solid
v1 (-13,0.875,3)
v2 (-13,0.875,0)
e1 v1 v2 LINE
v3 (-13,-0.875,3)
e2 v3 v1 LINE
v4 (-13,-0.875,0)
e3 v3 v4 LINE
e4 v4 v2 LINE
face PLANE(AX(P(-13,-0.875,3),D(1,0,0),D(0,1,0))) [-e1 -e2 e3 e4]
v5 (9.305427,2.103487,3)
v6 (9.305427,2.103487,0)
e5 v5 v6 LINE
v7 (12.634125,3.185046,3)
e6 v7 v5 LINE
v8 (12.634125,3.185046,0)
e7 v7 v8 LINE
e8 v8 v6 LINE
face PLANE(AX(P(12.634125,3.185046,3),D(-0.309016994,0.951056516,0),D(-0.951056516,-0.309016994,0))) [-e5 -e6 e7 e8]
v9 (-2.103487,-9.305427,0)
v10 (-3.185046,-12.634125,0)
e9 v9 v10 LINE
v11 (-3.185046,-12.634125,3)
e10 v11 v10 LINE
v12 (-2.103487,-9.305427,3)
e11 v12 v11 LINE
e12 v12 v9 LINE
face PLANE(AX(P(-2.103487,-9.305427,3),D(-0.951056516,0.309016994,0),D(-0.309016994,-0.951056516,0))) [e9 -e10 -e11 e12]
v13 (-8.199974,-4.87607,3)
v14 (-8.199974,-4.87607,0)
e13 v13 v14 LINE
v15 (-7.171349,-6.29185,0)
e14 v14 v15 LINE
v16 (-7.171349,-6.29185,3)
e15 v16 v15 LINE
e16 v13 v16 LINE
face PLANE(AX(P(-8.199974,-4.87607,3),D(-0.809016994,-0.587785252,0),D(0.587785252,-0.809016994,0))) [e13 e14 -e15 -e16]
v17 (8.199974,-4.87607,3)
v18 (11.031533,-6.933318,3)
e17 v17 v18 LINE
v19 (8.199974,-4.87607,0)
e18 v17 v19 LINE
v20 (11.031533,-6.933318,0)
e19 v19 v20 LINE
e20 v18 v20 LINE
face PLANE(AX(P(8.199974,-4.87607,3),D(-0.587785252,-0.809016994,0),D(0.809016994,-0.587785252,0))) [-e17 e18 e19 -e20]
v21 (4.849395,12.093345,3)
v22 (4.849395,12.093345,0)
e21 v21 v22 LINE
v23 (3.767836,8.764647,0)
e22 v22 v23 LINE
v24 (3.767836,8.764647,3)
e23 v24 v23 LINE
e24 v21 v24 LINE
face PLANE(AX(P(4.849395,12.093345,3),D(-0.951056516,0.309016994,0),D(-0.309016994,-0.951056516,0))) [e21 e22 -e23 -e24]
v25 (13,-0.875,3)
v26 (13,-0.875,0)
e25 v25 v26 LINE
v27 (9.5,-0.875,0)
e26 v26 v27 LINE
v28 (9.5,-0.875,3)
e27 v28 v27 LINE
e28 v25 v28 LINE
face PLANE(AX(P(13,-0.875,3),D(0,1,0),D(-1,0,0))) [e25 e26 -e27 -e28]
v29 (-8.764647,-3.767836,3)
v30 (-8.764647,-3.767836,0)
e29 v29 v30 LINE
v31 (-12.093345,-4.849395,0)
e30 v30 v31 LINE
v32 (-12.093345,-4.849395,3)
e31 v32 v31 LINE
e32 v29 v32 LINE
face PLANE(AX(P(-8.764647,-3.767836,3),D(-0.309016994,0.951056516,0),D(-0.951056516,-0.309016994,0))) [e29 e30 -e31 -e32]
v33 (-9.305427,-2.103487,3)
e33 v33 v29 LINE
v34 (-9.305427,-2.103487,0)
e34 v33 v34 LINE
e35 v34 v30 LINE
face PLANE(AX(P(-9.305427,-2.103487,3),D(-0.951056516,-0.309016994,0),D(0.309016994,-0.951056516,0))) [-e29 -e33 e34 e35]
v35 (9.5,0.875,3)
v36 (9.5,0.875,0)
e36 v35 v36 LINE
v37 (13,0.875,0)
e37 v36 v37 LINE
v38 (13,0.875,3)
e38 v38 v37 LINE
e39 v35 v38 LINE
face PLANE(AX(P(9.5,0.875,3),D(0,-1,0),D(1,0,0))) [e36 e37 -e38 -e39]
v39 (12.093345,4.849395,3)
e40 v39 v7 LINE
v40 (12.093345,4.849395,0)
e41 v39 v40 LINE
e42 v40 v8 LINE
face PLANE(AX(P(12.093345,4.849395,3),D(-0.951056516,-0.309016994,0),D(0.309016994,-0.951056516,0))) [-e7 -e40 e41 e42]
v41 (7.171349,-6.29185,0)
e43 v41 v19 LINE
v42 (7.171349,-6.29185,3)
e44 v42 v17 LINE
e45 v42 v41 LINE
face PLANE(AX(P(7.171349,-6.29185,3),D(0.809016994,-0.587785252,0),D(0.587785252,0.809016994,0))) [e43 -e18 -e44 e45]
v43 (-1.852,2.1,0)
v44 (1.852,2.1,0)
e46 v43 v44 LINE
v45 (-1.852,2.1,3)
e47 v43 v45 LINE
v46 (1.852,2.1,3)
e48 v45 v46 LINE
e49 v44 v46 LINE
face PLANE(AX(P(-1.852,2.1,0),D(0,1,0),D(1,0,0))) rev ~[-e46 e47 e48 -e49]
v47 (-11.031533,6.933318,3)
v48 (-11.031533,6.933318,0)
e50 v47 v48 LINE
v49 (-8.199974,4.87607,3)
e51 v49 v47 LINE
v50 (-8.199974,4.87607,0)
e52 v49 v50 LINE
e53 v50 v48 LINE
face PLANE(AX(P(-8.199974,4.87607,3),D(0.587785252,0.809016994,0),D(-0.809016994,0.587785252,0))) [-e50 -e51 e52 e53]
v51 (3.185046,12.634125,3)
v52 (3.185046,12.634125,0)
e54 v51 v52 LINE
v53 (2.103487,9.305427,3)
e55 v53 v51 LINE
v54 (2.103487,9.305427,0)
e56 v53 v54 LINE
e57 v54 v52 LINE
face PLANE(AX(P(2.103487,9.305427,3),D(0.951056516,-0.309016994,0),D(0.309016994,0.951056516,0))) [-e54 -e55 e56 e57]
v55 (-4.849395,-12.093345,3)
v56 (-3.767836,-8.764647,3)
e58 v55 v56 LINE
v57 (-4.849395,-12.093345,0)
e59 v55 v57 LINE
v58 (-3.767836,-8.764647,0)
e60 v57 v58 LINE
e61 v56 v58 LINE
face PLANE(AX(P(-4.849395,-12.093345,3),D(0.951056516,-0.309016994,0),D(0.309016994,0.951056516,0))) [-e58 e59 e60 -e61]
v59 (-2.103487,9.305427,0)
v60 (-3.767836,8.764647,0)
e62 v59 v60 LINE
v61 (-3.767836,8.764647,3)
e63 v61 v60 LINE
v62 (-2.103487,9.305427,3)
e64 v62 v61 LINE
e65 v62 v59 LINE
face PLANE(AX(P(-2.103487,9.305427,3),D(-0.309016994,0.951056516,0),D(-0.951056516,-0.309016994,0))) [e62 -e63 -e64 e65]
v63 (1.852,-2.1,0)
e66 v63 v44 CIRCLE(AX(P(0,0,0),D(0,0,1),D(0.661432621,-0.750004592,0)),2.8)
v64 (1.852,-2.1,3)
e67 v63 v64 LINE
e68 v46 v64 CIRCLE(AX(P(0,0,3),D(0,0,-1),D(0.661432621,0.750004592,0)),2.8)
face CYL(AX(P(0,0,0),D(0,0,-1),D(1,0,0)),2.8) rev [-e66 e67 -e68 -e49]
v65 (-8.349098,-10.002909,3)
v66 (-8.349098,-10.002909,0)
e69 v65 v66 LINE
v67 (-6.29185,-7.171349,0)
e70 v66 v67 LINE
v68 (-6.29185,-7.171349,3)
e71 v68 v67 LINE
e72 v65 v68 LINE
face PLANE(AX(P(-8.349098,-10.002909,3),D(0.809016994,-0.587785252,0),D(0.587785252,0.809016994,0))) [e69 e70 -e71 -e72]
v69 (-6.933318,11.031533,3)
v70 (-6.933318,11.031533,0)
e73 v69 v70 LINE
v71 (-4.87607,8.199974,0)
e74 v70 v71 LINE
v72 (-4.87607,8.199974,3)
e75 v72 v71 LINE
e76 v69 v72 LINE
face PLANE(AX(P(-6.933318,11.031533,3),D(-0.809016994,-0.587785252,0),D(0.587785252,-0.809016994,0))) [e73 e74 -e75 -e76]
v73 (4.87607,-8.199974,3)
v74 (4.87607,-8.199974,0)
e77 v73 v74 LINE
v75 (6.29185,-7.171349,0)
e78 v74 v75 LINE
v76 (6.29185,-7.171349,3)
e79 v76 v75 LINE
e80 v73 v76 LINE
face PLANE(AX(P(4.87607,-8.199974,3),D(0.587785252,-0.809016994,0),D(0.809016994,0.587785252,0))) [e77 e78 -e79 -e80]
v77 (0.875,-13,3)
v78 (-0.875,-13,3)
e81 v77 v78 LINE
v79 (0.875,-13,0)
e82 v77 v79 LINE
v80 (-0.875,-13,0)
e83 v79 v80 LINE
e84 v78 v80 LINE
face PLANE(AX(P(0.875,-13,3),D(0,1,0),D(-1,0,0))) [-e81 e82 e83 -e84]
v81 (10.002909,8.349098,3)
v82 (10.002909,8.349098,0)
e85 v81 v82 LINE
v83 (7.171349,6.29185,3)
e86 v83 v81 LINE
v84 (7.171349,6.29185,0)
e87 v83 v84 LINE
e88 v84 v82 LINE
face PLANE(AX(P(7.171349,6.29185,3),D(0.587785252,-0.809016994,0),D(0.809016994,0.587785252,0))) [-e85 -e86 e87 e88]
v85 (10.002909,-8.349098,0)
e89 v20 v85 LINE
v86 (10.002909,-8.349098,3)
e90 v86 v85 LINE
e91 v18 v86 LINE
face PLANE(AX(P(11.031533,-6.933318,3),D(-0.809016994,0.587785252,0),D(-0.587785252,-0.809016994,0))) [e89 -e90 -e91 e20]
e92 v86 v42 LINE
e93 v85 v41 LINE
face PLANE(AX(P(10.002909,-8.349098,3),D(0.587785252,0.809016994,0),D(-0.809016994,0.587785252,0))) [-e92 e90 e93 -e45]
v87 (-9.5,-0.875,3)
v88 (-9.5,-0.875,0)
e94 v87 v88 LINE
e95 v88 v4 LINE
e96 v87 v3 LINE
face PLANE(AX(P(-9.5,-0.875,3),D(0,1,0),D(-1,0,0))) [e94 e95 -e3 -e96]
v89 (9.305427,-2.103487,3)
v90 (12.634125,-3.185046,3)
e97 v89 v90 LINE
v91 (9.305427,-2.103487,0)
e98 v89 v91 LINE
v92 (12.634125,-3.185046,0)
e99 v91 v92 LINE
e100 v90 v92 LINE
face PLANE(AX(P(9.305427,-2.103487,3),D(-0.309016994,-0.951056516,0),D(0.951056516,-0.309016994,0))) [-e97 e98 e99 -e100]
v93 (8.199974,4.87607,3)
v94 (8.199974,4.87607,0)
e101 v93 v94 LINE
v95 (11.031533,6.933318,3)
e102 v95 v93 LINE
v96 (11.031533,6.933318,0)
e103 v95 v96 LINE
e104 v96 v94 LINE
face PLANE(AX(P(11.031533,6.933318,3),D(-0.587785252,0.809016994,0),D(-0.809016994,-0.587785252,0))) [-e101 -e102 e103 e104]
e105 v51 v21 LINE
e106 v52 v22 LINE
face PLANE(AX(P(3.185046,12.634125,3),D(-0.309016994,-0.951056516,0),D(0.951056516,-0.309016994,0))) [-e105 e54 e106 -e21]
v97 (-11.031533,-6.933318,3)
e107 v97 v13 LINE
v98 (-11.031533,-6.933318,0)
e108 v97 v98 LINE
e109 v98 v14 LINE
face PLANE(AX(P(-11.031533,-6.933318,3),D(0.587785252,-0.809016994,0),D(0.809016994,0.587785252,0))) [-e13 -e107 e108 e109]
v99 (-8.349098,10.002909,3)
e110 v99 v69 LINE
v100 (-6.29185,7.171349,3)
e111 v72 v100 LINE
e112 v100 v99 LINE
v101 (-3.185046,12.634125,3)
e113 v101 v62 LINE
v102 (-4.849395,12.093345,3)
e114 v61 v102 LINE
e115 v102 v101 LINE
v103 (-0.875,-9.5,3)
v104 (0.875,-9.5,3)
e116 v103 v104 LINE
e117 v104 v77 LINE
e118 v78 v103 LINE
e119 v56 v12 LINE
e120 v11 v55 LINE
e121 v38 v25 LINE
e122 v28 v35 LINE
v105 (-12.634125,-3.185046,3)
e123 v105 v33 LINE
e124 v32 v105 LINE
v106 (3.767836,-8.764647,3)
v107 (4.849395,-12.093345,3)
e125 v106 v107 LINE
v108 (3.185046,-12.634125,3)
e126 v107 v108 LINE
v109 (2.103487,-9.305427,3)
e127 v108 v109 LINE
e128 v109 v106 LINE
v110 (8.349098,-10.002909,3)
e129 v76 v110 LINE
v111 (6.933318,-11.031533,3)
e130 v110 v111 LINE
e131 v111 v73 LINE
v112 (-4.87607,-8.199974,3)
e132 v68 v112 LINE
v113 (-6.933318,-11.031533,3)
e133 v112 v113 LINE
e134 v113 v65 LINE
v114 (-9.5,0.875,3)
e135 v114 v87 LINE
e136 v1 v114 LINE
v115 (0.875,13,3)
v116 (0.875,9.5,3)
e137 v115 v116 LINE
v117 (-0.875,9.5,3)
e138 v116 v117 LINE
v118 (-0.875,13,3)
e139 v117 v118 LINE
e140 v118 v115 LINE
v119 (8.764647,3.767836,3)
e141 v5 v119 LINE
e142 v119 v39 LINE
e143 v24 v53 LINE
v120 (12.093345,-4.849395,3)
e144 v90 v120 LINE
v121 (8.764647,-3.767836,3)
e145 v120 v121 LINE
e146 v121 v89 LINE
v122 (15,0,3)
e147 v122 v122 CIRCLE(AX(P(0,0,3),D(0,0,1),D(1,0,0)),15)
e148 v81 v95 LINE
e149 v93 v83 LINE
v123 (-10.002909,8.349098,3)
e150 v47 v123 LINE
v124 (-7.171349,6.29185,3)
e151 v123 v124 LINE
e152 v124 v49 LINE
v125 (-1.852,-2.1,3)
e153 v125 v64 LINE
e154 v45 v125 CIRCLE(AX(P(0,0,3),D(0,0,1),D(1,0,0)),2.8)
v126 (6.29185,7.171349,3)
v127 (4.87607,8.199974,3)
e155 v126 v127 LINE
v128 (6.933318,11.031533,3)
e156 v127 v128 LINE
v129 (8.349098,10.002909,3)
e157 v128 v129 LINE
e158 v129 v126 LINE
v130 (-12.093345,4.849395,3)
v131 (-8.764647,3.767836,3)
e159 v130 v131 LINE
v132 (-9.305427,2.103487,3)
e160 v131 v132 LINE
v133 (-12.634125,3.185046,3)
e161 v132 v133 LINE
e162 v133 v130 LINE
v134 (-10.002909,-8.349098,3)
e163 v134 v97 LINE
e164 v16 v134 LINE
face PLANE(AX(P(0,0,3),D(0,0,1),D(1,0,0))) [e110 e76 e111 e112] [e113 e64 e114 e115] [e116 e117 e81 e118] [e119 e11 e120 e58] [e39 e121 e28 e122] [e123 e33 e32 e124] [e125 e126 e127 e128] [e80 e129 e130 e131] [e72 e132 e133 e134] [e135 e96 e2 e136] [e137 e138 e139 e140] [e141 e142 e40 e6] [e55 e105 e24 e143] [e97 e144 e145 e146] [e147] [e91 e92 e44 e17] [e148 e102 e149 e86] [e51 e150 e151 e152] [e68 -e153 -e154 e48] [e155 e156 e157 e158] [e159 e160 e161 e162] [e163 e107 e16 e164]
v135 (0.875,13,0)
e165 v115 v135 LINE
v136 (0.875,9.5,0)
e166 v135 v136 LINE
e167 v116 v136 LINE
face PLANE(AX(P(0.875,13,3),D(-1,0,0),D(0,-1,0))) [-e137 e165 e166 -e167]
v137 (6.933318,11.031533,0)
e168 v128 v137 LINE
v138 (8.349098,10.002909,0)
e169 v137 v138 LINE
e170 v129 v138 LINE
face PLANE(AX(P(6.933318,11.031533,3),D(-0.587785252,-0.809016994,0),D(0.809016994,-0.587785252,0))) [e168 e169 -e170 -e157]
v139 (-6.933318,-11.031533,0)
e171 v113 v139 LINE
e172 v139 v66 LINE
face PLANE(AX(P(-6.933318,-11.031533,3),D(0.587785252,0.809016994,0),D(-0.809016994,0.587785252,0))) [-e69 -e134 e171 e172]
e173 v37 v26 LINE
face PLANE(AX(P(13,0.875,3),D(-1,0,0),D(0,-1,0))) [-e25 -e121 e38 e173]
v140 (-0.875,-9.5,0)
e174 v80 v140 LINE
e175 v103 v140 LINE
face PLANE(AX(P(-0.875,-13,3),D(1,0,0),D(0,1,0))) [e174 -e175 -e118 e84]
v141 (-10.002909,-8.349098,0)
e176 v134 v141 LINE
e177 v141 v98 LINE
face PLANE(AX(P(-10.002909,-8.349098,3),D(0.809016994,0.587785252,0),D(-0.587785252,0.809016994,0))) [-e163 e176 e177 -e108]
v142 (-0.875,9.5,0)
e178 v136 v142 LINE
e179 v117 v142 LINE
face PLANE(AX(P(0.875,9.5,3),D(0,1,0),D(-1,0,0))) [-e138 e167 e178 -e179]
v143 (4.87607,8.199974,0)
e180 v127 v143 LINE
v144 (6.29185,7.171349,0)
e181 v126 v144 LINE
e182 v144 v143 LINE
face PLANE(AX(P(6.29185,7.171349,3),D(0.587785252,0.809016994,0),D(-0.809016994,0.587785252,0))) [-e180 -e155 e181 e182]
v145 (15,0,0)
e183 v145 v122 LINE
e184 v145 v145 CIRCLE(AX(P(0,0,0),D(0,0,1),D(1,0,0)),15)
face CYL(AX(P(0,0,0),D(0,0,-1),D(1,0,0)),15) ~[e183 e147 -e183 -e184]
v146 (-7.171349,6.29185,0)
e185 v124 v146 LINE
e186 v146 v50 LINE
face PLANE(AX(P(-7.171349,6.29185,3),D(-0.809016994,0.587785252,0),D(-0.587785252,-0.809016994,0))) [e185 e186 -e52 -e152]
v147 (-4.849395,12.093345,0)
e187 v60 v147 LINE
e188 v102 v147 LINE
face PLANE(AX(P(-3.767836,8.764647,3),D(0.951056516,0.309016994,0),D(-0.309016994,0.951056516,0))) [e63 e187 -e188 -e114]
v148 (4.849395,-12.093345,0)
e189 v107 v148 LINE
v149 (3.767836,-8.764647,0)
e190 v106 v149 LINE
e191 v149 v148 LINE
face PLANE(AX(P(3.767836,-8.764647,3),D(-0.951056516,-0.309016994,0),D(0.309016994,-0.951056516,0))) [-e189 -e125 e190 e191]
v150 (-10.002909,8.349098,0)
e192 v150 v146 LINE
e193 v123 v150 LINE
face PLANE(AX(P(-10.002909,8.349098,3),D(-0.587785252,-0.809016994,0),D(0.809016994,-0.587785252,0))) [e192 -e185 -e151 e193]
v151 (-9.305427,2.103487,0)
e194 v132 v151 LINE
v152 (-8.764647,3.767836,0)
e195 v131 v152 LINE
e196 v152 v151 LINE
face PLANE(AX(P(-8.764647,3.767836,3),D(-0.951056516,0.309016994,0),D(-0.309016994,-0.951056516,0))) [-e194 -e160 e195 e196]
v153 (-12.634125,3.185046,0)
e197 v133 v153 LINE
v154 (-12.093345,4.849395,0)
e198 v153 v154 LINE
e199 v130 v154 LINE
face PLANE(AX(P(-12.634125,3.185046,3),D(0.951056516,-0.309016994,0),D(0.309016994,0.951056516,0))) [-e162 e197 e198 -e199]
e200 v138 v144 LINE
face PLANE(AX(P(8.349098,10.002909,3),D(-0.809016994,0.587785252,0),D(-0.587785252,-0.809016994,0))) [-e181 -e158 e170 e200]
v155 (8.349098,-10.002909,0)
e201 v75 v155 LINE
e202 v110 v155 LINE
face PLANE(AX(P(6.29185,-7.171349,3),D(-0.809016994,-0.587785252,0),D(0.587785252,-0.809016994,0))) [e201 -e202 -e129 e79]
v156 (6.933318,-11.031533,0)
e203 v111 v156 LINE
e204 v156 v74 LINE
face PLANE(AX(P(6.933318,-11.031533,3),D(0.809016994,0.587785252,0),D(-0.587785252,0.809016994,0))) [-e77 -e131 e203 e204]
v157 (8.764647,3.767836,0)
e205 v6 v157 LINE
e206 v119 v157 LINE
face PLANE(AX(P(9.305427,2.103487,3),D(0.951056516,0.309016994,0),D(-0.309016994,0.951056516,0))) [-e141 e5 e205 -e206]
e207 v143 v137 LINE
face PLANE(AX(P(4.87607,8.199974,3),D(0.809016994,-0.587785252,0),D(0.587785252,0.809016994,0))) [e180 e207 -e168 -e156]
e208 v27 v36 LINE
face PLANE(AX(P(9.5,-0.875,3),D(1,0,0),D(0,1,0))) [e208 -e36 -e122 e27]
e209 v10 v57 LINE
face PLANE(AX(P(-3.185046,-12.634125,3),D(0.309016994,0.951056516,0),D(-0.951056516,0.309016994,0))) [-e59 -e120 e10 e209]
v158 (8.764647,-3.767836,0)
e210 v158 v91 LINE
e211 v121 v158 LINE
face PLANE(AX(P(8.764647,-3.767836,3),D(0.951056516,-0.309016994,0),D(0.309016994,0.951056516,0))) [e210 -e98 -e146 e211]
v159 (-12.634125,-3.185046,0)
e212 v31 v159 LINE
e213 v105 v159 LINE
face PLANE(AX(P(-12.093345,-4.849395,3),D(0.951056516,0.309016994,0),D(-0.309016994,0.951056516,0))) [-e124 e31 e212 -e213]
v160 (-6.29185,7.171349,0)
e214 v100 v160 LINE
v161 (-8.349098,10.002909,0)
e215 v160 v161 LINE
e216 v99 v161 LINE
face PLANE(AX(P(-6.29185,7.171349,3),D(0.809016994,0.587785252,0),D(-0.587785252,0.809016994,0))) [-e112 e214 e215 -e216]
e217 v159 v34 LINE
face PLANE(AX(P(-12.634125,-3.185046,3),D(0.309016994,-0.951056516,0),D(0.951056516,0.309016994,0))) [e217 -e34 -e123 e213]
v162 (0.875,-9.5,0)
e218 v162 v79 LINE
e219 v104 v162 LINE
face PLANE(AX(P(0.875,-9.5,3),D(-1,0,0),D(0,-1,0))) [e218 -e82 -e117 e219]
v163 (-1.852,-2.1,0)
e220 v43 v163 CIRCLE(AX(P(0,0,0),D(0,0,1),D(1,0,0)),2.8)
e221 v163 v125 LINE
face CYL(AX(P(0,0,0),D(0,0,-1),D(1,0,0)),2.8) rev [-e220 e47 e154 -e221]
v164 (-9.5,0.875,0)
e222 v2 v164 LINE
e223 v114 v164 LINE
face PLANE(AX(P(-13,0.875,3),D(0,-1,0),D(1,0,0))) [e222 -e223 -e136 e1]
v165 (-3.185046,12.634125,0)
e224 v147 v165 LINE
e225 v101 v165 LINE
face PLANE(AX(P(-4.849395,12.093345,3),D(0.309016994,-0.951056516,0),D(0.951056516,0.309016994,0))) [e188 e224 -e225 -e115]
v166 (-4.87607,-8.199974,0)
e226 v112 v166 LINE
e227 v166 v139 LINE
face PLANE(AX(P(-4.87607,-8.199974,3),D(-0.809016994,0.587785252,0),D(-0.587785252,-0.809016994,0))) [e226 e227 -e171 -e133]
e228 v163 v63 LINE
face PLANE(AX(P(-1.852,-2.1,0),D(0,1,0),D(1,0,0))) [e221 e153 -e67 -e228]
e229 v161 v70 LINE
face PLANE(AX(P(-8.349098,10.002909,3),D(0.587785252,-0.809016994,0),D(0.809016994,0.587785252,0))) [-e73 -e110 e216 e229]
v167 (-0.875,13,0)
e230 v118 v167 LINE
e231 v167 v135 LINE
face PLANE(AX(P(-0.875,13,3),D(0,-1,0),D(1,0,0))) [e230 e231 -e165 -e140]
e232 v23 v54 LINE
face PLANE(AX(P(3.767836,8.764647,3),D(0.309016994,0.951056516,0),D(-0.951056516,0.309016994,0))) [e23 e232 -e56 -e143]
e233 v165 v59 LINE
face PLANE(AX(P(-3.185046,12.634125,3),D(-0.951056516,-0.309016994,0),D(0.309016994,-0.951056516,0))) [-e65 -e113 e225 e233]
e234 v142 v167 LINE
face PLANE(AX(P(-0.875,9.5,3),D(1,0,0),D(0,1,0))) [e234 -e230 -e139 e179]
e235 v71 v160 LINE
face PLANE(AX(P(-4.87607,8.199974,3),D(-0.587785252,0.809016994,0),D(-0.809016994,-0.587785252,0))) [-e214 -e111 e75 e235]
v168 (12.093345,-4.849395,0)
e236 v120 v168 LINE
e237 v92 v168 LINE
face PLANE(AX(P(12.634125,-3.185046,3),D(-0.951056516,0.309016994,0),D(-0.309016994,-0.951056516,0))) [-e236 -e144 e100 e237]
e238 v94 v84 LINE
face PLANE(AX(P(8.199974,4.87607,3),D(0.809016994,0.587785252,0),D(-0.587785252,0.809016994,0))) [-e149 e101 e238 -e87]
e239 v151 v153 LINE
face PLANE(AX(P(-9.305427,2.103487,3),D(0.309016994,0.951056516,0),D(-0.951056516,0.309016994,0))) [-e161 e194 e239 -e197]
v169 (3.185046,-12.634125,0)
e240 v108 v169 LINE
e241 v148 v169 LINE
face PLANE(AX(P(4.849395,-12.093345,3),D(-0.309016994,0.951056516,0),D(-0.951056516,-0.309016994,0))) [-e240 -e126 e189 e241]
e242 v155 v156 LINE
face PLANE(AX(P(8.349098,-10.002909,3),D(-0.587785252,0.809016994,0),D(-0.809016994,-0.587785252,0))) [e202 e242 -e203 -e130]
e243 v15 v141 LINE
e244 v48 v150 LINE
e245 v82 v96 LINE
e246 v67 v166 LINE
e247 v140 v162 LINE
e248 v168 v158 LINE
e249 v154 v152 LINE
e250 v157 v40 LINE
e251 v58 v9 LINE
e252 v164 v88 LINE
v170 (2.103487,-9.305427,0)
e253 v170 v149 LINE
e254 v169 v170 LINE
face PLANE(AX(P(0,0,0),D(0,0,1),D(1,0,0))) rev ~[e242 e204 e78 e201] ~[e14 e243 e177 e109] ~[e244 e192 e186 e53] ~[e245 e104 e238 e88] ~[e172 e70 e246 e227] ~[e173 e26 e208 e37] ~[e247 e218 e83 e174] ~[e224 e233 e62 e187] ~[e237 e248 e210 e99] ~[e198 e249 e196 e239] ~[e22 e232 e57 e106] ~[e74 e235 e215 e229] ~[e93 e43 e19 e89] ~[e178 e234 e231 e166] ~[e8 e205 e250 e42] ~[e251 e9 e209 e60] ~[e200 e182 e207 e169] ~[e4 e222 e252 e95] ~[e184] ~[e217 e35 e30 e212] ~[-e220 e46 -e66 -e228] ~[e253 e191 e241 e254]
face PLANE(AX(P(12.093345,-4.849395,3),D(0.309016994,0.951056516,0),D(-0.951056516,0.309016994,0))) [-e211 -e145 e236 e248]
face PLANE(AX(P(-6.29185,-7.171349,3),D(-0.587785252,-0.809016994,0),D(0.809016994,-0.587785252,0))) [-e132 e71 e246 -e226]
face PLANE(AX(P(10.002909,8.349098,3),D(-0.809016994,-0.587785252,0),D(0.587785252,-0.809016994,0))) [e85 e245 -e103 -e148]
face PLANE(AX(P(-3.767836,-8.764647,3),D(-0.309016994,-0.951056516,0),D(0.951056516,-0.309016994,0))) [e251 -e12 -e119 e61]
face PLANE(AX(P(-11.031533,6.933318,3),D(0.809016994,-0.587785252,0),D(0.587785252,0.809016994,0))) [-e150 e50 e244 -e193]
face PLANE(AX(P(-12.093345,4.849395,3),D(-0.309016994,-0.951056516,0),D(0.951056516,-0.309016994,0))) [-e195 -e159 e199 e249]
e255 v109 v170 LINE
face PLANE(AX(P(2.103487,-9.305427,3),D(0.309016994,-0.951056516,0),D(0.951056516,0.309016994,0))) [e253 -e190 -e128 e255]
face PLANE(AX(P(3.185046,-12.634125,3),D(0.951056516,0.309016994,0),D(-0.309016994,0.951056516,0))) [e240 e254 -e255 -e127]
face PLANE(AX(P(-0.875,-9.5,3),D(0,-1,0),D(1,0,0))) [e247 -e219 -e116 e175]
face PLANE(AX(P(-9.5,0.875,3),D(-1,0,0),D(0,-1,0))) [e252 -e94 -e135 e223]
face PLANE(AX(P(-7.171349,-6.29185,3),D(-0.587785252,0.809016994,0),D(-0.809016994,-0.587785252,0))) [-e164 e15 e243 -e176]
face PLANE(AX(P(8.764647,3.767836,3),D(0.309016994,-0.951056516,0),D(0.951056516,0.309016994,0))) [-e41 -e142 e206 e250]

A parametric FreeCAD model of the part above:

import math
import FreeCAD as App
import Part
import Sketcher

V = App.Vector


def add_polygon(sketch, points):
    """Adds a closed chain of lines whose ends are joined by coincident constraints."""
    first, n = sketch.GeometryCount, len(points)
    for a, b in zip(points, points[1:] + points[:1]):
        sketch.addGeometry(Part.LineSegment(App.Vector(*a, 0), App.Vector(*b, 0)), False)
    for i in range(n):
        sketch.addConstraint(Sketcher.Constraint("Coincident", first + i, 2, first + (i + 1) % n, 1))

doc = App.newDocument("Part")
body = doc.addObject("PartDesign::Body", "Body")

# Sketch on XY plane
sketch1 = doc.addObject("Sketcher::SketchObject", "Sketch")
body.addObject(sketch1)
sketch1.AttachmentSupport = (doc.XY_Plane, [""])
sketch1.MapMode = "FlatFace"
sketch1.addGeometry(Part.Circle(V(0, 0, 0), V(0, 0, 1), 15), False)
sketch1.addGeometry(Part.ArcOfCircle(Part.Circle(V(0, 0, 0), V(0, 0, 1), 2.8), math.radians(-49), math.radians(49)), False)
sketch1.addGeometry(Part.LineSegment(V(1.9, -2.1, 0), V(-1.9, -2.1, 0)), False)
sketch1.addGeometry(Part.ArcOfCircle(Part.Circle(V(0, 0, 0), V(0, 0, 1), 2.8), math.radians(131), math.radians(229)), False)
sketch1.addGeometry(Part.LineSegment(V(-1.9, 2.1, 0), V(1.9, 2.1, 0)), False)
sketch1.addConstraint(Sketcher.Constraint("Coincident", 1, 1, 2, 1))
sketch1.addConstraint(Sketcher.Constraint("Coincident", 2, 2, 3, 2))
sketch1.addConstraint(Sketcher.Constraint("Coincident", 3, 1, 4, 1))
sketch1.addConstraint(Sketcher.Constraint("Coincident", 4, 2, 1, 2))
sketch1.addConstraint(Sketcher.Constraint("Horizontal", 2))
sketch1.addConstraint(Sketcher.Constraint("Horizontal", 4))
sketch1.addConstraint(Sketcher.Constraint("Coincident", 0, 3, -1, 1))
sketch1.addConstraint(Sketcher.Constraint("Coincident", 1, 3, -1, 1))
sketch1.addConstraint(Sketcher.Constraint("Coincident", 3, 3, -1, 1))
sketch1.addConstraint(Sketcher.Constraint("Equal", 1, 3))
sketch1.addConstraint(Sketcher.Constraint("Vertical", 2, 2, 3, 1))
sketch1.addConstraint(Sketcher.Constraint("Diameter", 0, 30.0))
sketch1.addConstraint(Sketcher.Constraint("Radius", 1, 2.8))
sketch1.addConstraint(Sketcher.Constraint("DistanceY", 1, 1, -1, 1, 2.1))
pad1 = doc.addObject("PartDesign::Pad", "Pad")
body.addObject(pad1)
pad1.Profile = sketch1
pad1.Length = 3

# Sketch on XY plane
sketch2 = doc.addObject("Sketcher::SketchObject", "Sketch001")
body.addObject(sketch2)
sketch2.AttachmentSupport = (doc.XY_Plane, [""])
sketch2.MapMode = "FlatFace"
sketch2.AttachmentOffset = App.Placement(V(0, 0, 3), App.Rotation())
add_polygon(sketch2, [(0.9, 13), (-0.9, 13), (-0.9, 9.5), (0.9, 9.5)])  # lines 0-3
sketch2.addConstraint(Sketcher.Constraint("Horizontal", 0))
sketch2.addConstraint(Sketcher.Constraint("Vertical", 1))
sketch2.addConstraint(Sketcher.Constraint("Horizontal", 2))
sketch2.addConstraint(Sketcher.Constraint("Vertical", 3))
sketch2.addConstraint(Sketcher.Constraint("DistanceY", 1, 2, 1, 1, 3.5))
sketch2.addConstraint(Sketcher.Constraint("DistanceX", 0, 2, 0, 1, 1.75))
sketch2.addConstraint(Sketcher.Constraint("DistanceY", -1, 1, 1, 2, 9.5))
sketch2.addConstraint(Sketcher.Constraint("DistanceX", 0, 2, -1, 1, 0.875))
pocket1 = doc.addObject("PartDesign::Pocket", "Pocket")
body.addObject(pocket1)
pocket1.Profile = sketch2
pocket1.Type = "ThroughAll"
doc.recompute()

polarpattern = doc.addObject("PartDesign::PolarPattern", "PolarPattern")
body.addObject(polarpattern)
polarpattern.Originals = [pocket1]
polarpattern.Axis = (doc.Z_Axis, [""])
polarpattern.Angle = 360
polarpattern.Occurrences = 20
body.Tip = polarpattern

doc.recompute()
